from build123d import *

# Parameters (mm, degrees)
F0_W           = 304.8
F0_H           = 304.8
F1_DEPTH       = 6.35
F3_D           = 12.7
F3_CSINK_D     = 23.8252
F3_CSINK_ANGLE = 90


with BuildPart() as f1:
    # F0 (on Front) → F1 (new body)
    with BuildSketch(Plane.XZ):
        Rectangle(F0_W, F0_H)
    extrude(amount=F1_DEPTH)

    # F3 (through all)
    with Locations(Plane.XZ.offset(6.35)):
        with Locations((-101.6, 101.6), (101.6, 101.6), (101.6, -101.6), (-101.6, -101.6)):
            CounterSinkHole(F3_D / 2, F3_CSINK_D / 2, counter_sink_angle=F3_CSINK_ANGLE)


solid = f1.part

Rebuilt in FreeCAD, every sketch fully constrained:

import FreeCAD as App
import Part
import Sketcher

V = App.Vector
Q = App.Units.Quantity


def add_polygon(sketch, points):
    """Adds a closed chain of lines whose ends are joined by coincident constraints."""
    first, n = sketch.GeometryCount, len(points)
    for a, b in zip(points, points[1:] + points[:1]):
        sketch.addGeometry(Part.LineSegment(App.Vector(*a, 0), App.Vector(*b, 0)), False)
    for i in range(n):
        sketch.addConstraint(Sketcher.Constraint("Coincident", first + i, 2, first + (i + 1) % n, 1))

doc = App.newDocument("Part")
body = doc.addObject("PartDesign::Body", "Body")

# Sketch on XZ plane
sketch1 = body.newObject("Sketcher::SketchObject", "Sketch")
sketch1.AttachmentSupport = (doc.getObject("XZ_Plane"), [""])
sketch1.MapMode = "FlatFace"
add_polygon(sketch1, [(-152, 152), (-152, -152), (152, -152), (152, 152)])  # lines 0-3
sketch1.addConstraint([
    Sketcher.Constraint("Vertical", 0),
    Sketcher.Constraint("Horizontal", 1),
    Sketcher.Constraint("Vertical", 2),
    Sketcher.Constraint("Horizontal", 3),
    Sketcher.Constraint("Symmetric", 0, 2, 2, 2, -1, 1),
    Sketcher.Constraint("Equal", 3, 0),
    Sketcher.Constraint("DistanceX", 1, 1, 1, 2, Q("12 in")),
])
pad1 = body.newObject("PartDesign::Pad", "Pad")
pad1.Profile = sketch1
pad1.Length = Q("0.25 in")

# Sketch on XZ plane
sketch2 = body.newObject("Sketcher::SketchObject", "Sketch001")
sketch2.AttachmentSupport = (doc.getObject("XZ_Plane"), [""])
sketch2.MapMode = "FlatFace"
sketch2.AttachmentOffset = App.Placement(V(0, 0, 0.25 * 25.4), App.Rotation())
sketch2.addGeometry([
    Part.Circle(V(-102, 102, 0), V(0, 0, 1), 6),
    Part.Circle(V(102, 102, 0), V(0, 0, 1), 6),
    Part.Circle(V(102, -102, 0), V(0, 0, 1), 6),
    Part.Circle(V(-102, -102, 0), V(0, 0, 1), 6),
], False)
sketch2.addConstraint([
    Sketcher.Constraint("Equal", 0, 1),
    Sketcher.Constraint("Equal", 1, 2),
    Sketcher.Constraint("Equal", 2, 3),
    Sketcher.Constraint("Symmetric", 0, 3, 2, 3, -1, 1),
    Sketcher.Constraint("Symmetric", 1, 3, 3, 3, -1, 1),
    Sketcher.Constraint("Symmetric", 0, 3, 1, 3, -2),
    Sketcher.Constraint("Diameter", 0, Q("0.5 in")),
    Sketcher.Constraint("DistanceX", 0, 3, -1, 1, Q("4 in")),
    Sketcher.Constraint("DistanceY", -1, 1, 0, 3, Q("4 in")),
])
doc.recompute()
hole = body.newObject("PartDesign::Hole", "Hole")
hole.Profile = sketch2
hole.ThreadType = "None"
hole.Diameter = Q("0.5 in")
hole.DepthType = "ThroughAll"
hole.HoleCutType = "Countersink"
hole.HoleCutDiameter = Q("0.938 in")
hole.HoleCutCountersinkAngle = 90

doc.recompute()
